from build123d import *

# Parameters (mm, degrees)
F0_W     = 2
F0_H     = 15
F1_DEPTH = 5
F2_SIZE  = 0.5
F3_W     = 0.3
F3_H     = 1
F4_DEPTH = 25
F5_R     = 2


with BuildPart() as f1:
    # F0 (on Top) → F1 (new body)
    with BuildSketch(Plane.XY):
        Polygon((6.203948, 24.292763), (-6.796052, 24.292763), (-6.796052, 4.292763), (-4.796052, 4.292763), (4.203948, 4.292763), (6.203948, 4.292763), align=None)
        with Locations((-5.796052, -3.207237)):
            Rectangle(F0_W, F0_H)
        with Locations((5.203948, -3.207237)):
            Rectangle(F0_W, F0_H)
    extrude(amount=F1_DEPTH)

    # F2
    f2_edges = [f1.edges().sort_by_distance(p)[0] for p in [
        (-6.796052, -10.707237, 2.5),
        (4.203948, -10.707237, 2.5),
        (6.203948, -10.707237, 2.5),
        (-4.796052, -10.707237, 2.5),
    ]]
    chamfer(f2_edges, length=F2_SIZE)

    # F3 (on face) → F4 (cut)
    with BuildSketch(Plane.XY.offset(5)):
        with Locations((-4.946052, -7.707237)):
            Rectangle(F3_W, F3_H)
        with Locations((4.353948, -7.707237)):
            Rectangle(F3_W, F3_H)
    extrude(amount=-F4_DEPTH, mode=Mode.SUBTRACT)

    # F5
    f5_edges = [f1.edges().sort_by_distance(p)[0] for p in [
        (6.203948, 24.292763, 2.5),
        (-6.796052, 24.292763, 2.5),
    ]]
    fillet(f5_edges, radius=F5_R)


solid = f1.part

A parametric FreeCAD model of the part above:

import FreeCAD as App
import Part
import Sketcher
from FreeCAD import Vector


def edges_at(feature, points):
    """Names of the edges that pass closest to the given points."""
    edges = feature.Shape.Edges
    near = lambda p: min(range(len(edges)), key=lambda i: edges[i].distToShape(Part.Vertex(*p))[0])
    return sorted({f"Edge{near(p) + 1}" for p in points})


def add_polygon(sketch, points):
    """Adds a closed chain of lines whose ends are joined by coincident constraints."""
    first, n = sketch.GeometryCount, len(points)
    for a, b in zip(points, points[1:] + points[:1]):
        sketch.addGeometry(Part.LineSegment(App.Vector(*a, 0), App.Vector(*b, 0)), False)
    for i in range(n):
        sketch.addConstraint(Sketcher.Constraint("Coincident", first + i, 2, first + (i + 1) % n, 1))

doc = App.newDocument("Part")
body = doc.addObject("PartDesign::Body", "Body")

# Sketch on XY plane
sketch1 = body.newObject("Sketcher::SketchObject", "Sketch")
sketch1.AttachmentSupport = (doc.getObject("XY_Plane"), [""])
sketch1.MapMode = "FlatFace"
add_polygon(sketch1, [(6.203948, 24.292763), (-6.796052, 24.292763), (-6.796052, -10.707237), (-4.796052, -10.707237), (-4.796052, 4.292763), (4.203948, 4.292763), (4.203948, -10.707237), (6.203948, -10.707237)])  # lines 0-7
sketch1.addConstraint([
    Sketcher.Constraint("Horizontal", 0),
    Sketcher.Constraint("Vertical", 1),
    Sketcher.Constraint("Horizontal", 2),
    Sketcher.Constraint("Vertical", 3),
    Sketcher.Constraint("Horizontal", 4),
    Sketcher.Constraint("Vertical", 5),
    Sketcher.Constraint("Horizontal", 6),
    Sketcher.Constraint("Vertical", 7),
    Sketcher.Constraint("Horizontal", 2, 2, 5, 2),
    Sketcher.Constraint("Equal", 2, 6),
    Sketcher.Constraint("DistanceX", 0, 2, 0, 1, 13.0),
    Sketcher.Constraint("DistanceX", 2, 1, 2, 2, 2.0),
    Sketcher.Constraint("DistanceY", 1, 2, 1, 1, 35.0),
    Sketcher.Constraint("DistanceY", 3, 1, 3, 2, 15.0),
    Sketcher.Constraint("DistanceX", 0, 2, -1, 1, 6.796052),
    Sketcher.Constraint("DistanceY", -1, 1, 0, 2, 24.292763),
])
pad1 = body.newObject("PartDesign::Pad", "Pad")
pad1.Profile = sketch1
pad1.Length = 5
doc.recompute()

chamfer = body.newObject("PartDesign::Chamfer", "Chamfer")
chamfer.Base = (pad1, edges_at(pad1, [
    (-6.796, -10.707, 2.5),
    (4.204, -10.707, 2.5),
    (6.204, -10.707, 2.5),
    (-4.796, -10.707, 2.5),
]))
chamfer.Size = 0.5

# Sketch on XY plane
sketch2 = body.newObject("Sketcher::SketchObject", "Sketch001")
sketch2.AttachmentSupport = (doc.getObject("XY_Plane"), [""])
sketch2.MapMode = "FlatFace"
sketch2.AttachmentOffset = App.Placement(Vector(0, 0, 5), App.Rotation())
add_polygon(sketch2, [(-5.096052, -7.207237), (-5.096052, -8.207237), (-4.796052, -8.207237), (-4.796052, -7.207237)])  # lines 0-3
add_polygon(sketch2, [(4.203948, -7.207237), (4.203948, -8.207237), (4.503948, -8.207237), (4.503948, -7.207237)])  # lines 4-7
sketch2.addConstraint([
    Sketcher.Constraint("Vertical", 0),
    Sketcher.Constraint("Horizontal", 1),
    Sketcher.Constraint("Vertical", 2),
    Sketcher.Constraint("Horizontal", 3),
    Sketcher.Constraint("Vertical", 4),
    Sketcher.Constraint("Horizontal", 5),
    Sketcher.Constraint("Vertical", 6),
    Sketcher.Constraint("Horizontal", 7),
    Sketcher.Constraint("Horizontal", 1, 2, 4, 2),
    Sketcher.Constraint("Horizontal", 3, 2, 6, 2),
    Sketcher.Constraint("Equal", 3, 5),
    Sketcher.Constraint("DistanceY", 0, 2, 0, 1, 1.0),
    Sketcher.Constraint("DistanceX", 1, 1, 1, 2, 0.3),
    Sketcher.Constraint("DistanceX", 1, 2, 4, 2, 9.0),
    Sketcher.Constraint("DistanceX", -1, 1, 5, 2, 4.503948),
    Sketcher.Constraint("DistanceY", 0, 2, -1, 1, 8.207237),
])
pocket1 = body.newObject("PartDesign::Pocket", "Pocket")
pocket1.Profile = sketch2
pocket1.Length = 25
doc.recompute()

fillet = body.newObject("PartDesign::Fillet", "Fillet")
fillet.Base = (pocket1, edges_at(pocket1, [(6.204, 24.293, 2.5), (-6.796, 24.293, 2.5)]))
fillet.Radius = 2

doc.recompute()
